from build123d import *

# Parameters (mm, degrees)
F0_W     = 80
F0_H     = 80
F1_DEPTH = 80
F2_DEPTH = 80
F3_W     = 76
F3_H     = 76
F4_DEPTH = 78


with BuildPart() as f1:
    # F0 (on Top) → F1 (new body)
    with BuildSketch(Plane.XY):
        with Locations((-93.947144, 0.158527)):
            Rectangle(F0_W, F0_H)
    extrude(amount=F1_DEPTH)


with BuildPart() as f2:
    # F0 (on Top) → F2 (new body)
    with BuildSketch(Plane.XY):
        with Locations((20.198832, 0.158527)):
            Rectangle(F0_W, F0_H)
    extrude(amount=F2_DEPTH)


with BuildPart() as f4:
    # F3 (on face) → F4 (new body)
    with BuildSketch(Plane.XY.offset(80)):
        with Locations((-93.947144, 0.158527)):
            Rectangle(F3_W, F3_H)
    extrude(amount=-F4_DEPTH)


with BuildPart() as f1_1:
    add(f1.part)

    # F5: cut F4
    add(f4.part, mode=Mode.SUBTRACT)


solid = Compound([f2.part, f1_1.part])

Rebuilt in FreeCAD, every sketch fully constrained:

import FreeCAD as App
import Part
import Sketcher

V = App.Vector


def add_polygon(sketch, points):
    """Adds a closed chain of lines whose ends are joined by coincident constraints."""
    first, n = sketch.GeometryCount, len(points)
    for a, b in zip(points, points[1:] + points[:1]):
        sketch.addGeometry(Part.LineSegment(App.Vector(*a, 0), App.Vector(*b, 0)), False)
    for i in range(n):
        sketch.addConstraint(Sketcher.Constraint("Coincident", first + i, 2, first + (i + 1) % n, 1))

doc = App.newDocument("Part")
body = doc.addObject("PartDesign::Body", "Body")

sketch1 = body.newObject("Sketcher::SketchObject", "Sketch")
sketch1.AttachmentSupport = (doc.getObject("XY_Plane"), [""])
sketch1.MapMode = "FlatFace"
add_polygon(sketch1, [(-133.947144, 40.158527), (-133.947144, -39.841473), (-53.947144, -39.841473), (-53.947144, 40.158527)])
sketch1.addConstraint([
    Sketcher.Constraint("Vertical", 0),
    Sketcher.Constraint("Horizontal", 1),
    Sketcher.Constraint("Vertical", 2),
    Sketcher.Constraint("Horizontal", 3),
    Sketcher.Constraint("Equal", 3, 0),
    Sketcher.Constraint("DistanceX", 1, 1, 1, 2, 80.0),
    Sketcher.Constraint("DistanceX", 0, 2, -1, 1, 133.947144),
    Sketcher.Constraint("DistanceY", 0, 2, -1, 1, 39.841473),
])
pad1 = body.newObject("PartDesign::Pad", "Pad")
pad1.Profile = sketch1
pad1.Length = 80
body2 = doc.addObject("PartDesign::Body", "Body001")

sketch2 = body2.newObject("Sketcher::SketchObject", "Sketch001")
sketch2.AttachmentSupport = (doc.getObject("XY_Plane001"), [""])
sketch2.MapMode = "FlatFace"
add_polygon(sketch2, [(-19.801168, 40.158527), (-19.801168, -39.841473), (60.198832, -39.841473), (60.198832, 40.158527)])
sketch2.addConstraint([
    Sketcher.Constraint("Vertical", 0),
    Sketcher.Constraint("Horizontal", 1),
    Sketcher.Constraint("Vertical", 2),
    Sketcher.Constraint("Horizontal", 3),
    Sketcher.Constraint("Equal", 3, 0),
    Sketcher.Constraint("DistanceX", 1, 1, 1, 2, 80.0),
    Sketcher.Constraint("DistanceX", 0, 2, -1, 1, 19.801168),
    Sketcher.Constraint("DistanceY", 0, 2, -1, 1, 39.841473),
])
pad2 = body2.newObject("PartDesign::Pad", "Pad001")
pad2.Profile = sketch2
pad2.Length = 80
body3 = doc.addObject("PartDesign::Body", "Body002")

sketch3 = body3.newObject("Sketcher::SketchObject", "Sketch002")
sketch3.AttachmentSupport = (doc.getObject("XY_Plane002"), [""])
sketch3.MapMode = "FlatFace"
sketch3.AttachmentOffset = App.Placement(V(0, 0, 80), App.Rotation())
add_polygon(sketch3, [(-131.947144, 38.158527), (-131.947144, -37.841473), (-55.947144, -37.841473), (-55.947144, 38.158527)])
sketch3.addConstraint([
    Sketcher.Constraint("Vertical", 0),
    Sketcher.Constraint("Horizontal", 1),
    Sketcher.Constraint("Vertical", 2),
    Sketcher.Constraint("Horizontal", 3),
    Sketcher.Constraint("Equal", 3, 0),
    Sketcher.Constraint("DistanceX", 1, 1, 1, 2, 76.0),
    Sketcher.Constraint("DistanceX", 0, 2, -1, 1, 131.947144),
    Sketcher.Constraint("DistanceY", 0, 2, -1, 1, 37.841473),
])
pad3 = body3.newObject("PartDesign::Pad", "Pad002")
pad3.Profile = sketch3
pad3.Length = 78
pad3.Reversed = True
doc.recompute()

boolean = body.newObject("PartDesign::Boolean", "Boolean")
boolean.Type = "Cut"
boolean.addObjects([body3])

doc.recompute()
